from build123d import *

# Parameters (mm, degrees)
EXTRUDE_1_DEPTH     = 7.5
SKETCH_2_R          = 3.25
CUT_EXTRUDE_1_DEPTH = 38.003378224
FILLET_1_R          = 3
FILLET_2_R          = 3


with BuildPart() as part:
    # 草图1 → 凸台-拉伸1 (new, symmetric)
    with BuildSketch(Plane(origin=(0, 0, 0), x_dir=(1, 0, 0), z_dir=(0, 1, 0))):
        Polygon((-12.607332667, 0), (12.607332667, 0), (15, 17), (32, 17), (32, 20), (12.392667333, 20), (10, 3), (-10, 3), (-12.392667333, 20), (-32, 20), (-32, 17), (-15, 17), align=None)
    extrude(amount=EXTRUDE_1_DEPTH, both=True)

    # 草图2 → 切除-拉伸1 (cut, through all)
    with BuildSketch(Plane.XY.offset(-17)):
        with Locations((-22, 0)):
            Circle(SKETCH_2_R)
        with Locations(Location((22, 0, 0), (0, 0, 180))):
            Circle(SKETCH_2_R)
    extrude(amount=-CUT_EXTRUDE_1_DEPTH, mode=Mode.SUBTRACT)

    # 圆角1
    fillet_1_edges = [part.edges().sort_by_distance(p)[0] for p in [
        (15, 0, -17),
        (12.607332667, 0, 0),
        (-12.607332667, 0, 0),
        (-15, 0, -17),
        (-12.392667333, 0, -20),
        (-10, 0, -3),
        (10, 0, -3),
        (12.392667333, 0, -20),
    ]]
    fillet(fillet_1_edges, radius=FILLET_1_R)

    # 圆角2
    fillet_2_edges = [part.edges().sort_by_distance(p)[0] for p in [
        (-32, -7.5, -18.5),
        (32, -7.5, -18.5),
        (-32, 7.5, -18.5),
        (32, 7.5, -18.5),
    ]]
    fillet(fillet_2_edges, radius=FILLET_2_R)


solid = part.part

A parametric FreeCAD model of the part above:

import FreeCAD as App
import Part
import Sketcher

V = App.Vector
Q = App.Units.Quantity


def edges_at(feature, points):
    """Names of the edges that pass closest to the given points."""
    edges = feature.Shape.Edges
    near = lambda p: min(range(len(edges)), key=lambda i: edges[i].distToShape(Part.Vertex(*p))[0])
    return sorted({f"Edge{near(p) + 1}" for p in points})


def add_polygon(sketch, points):
    """Adds a closed chain of lines whose ends are joined by coincident constraints."""
    first, n = sketch.GeometryCount, len(points)
    for a, b in zip(points, points[1:] + points[:1]):
        sketch.addGeometry(Part.LineSegment(App.Vector(*a, 0), App.Vector(*b, 0)), False)
    for i in range(n):
        sketch.addConstraint(Sketcher.Constraint("Coincident", first + i, 2, first + (i + 1) % n, 1))

doc = App.newDocument("Part")
body = doc.addObject("PartDesign::Body", "Body")

sketch1 = body.newObject("Sketcher::SketchObject", "Sketch")
sketch1.AttachmentSupport = (doc.getObject("XZ_Plane"), [""])
sketch1.MapMode = "FlatFace"
add_polygon(sketch1, [(-12.6, 0), (12.6, 0), (15, -17), (32, -17), (32, -20), (12.4, -20), (10, -3), (-10, -3), (-12.4, -20), (-32, -20), (-32, -17), (-15, -17)])
sketch1.addConstraint([
    Sketcher.Constraint("Horizontal", 0),
    Sketcher.Constraint("Horizontal", 2),
    Sketcher.Constraint("Vertical", 3),
    Sketcher.Constraint("Horizontal", 4),
    Sketcher.Constraint("Horizontal", 6),
    Sketcher.Constraint("Horizontal", 8),
    Sketcher.Constraint("Vertical", 9),
    Sketcher.Constraint("Horizontal", 10),
    Sketcher.Constraint("Symmetric", 0, 2, 11, 2, -1, 1),
    Sketcher.Constraint("Symmetric", 4, 2, 7, 2, -2),
    Sketcher.Constraint("Symmetric", 2, 2, 9, 2, -2),
    Sketcher.Constraint("Parallel", 1, 5),
    Sketcher.Constraint("Parallel", 7, 11),
    Sketcher.Constraint("Equal", 2, 10),
    Sketcher.Constraint("Equal", 1, 5),
    Sketcher.Constraint("DistanceX", 2, 1, 2, 2, Q("17 mm")),
    Sketcher.Constraint("DistanceX", 6, 2, 6, 1, Q("20 mm")),
    Sketcher.Constraint("DistanceY", 3, 2, 3, 1, Q("3 mm")),
    Sketcher.Constraint("DistanceX", -1, 1, 1, 2, Q("15 mm")),
    Sketcher.Constraint("DistanceY", 1, 2, -1, 1, Q("17 mm")),
    Sketcher.Constraint("DistanceX", 0, 1, 0, 2, Q("25.214665 mm")),
])
pad1 = body.newObject("PartDesign::Pad", "Pad")
pad1.Profile = sketch1
pad1.Length = 15
pad1.Midplane = True

sketch2 = body.newObject("Sketcher::SketchObject", "Sketch001")
sketch2.AttachmentSupport = (doc.getObject("XY_Plane"), [""])
sketch2.MapMode = "FlatFace"
sketch2.AttachmentOffset = App.Placement(V(0, 0, -17), App.Rotation())
sketch2.addGeometry([
    Part.Circle(V(-22, 0, 0), V(0, 0, 1), 3.2),
    Part.Circle(V(22, 0, 0), V(0, 0, 1), 3.2),
], False)
sketch2.addConstraint([
    Sketcher.Constraint("Equal", 0, 1),
    Sketcher.Constraint("Symmetric", 0, 3, 1, 3, -1, 1),
    Sketcher.Constraint("PointOnObject", 0, 3, -1),
    Sketcher.Constraint("Diameter", 0, Q("6.5 mm")),
    Sketcher.Constraint("DistanceX", 0, 3, -1, 1, Q("22 mm")),
])
pocket1 = body.newObject("PartDesign::Pocket", "Pocket")
pocket1.Profile = sketch2
pocket1.Type = "ThroughAll"
doc.recompute()

fillet = body.newObject("PartDesign::Fillet", "Fillet")
fillet.Base = (pocket1, edges_at(pocket1, [
    (15, 0, -17),
    (12.607, 0, 0),
    (-12.607, 0, 0),
    (-15, 0, -17),
    (-12.393, 0, -20),
    (-10, 0, -3),
    (10, 0, -3),
    (12.393, 0, -20),
]))
fillet.Radius = 3
doc.recompute()

fillet2 = body.newObject("PartDesign::Fillet", "Fillet001")
fillet2.Base = (fillet, edges_at(fillet, [
    (-32, -7.5, -18.5),
    (32, -7.5, -18.5),
    (-32, 7.5, -18.5),
    (32, 7.5, -18.5),
]))
fillet2.Radius = 3

doc.recompute()
